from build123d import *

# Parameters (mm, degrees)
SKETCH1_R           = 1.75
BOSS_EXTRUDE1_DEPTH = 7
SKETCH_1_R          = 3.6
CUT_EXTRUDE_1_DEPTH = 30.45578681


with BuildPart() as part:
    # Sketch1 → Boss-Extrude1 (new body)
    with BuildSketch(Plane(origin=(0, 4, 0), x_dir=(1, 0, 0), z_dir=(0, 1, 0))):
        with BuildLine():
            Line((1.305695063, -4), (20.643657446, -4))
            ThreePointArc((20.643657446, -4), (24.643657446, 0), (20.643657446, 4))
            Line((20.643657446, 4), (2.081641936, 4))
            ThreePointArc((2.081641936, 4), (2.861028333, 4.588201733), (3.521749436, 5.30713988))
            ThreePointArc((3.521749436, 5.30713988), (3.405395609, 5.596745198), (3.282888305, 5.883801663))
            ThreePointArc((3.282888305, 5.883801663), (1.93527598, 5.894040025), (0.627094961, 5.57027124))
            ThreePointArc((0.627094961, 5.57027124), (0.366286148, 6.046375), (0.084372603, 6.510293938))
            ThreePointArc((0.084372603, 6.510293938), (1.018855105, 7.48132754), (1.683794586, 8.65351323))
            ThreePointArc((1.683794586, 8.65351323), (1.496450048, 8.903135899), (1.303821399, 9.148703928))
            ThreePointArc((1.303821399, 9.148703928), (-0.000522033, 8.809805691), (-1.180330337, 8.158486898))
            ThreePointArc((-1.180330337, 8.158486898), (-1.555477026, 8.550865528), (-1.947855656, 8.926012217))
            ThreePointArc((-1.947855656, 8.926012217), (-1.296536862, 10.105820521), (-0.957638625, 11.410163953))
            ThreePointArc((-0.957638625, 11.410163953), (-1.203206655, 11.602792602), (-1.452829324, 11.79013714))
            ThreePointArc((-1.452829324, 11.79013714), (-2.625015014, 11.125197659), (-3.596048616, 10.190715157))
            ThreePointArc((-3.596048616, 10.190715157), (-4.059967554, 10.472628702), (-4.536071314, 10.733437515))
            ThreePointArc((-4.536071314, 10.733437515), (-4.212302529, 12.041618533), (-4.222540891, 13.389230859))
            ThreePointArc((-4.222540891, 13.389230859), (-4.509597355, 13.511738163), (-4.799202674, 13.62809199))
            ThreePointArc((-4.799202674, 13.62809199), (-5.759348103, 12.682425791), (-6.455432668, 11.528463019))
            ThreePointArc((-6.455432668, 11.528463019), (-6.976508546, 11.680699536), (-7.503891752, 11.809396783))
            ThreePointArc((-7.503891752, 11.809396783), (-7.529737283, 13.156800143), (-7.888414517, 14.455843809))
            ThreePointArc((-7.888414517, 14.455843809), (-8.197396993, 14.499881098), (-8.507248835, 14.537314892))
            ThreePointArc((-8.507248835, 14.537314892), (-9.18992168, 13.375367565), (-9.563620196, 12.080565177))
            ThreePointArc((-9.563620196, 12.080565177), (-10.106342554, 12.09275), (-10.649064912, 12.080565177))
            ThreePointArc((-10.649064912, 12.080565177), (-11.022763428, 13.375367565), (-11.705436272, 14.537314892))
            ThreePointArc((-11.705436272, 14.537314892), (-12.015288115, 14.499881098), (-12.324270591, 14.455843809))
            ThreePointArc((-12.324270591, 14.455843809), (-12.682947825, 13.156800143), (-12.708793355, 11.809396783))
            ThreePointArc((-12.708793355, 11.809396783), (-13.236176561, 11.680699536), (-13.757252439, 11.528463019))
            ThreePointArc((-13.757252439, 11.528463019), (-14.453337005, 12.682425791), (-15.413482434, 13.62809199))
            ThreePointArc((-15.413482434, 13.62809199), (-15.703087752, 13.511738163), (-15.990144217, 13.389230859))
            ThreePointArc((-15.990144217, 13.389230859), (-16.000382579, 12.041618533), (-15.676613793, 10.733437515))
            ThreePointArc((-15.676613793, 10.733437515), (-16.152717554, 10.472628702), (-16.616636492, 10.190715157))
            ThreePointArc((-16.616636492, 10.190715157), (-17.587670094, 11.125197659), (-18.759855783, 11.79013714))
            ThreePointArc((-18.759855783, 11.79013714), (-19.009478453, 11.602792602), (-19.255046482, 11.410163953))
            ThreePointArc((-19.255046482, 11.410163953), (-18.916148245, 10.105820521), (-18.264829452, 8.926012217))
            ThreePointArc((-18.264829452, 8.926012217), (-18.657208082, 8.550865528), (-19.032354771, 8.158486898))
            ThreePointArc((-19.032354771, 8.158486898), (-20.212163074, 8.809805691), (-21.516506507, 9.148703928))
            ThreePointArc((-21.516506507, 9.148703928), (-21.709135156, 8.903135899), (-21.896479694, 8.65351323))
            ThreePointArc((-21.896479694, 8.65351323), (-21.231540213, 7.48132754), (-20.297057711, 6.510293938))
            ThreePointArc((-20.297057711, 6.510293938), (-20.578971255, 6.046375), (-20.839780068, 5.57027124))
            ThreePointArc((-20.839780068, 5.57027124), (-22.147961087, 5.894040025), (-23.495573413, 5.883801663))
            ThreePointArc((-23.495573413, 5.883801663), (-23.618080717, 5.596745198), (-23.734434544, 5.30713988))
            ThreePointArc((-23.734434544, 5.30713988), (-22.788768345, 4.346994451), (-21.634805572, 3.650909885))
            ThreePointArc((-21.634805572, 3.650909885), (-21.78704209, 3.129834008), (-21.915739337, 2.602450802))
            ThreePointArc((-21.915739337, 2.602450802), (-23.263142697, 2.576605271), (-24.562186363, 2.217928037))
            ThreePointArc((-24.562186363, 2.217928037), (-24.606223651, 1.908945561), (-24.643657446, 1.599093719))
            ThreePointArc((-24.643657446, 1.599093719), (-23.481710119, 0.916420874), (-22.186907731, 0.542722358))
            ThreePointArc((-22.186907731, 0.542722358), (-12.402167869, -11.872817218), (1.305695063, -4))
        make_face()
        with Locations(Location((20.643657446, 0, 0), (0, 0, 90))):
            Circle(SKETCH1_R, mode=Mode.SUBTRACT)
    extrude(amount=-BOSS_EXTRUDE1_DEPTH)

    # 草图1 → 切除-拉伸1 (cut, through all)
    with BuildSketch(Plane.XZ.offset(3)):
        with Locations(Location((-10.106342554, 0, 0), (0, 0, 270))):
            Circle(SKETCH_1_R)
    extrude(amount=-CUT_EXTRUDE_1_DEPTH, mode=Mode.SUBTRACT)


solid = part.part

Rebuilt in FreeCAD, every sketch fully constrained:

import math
import FreeCAD as App
import Part
import Sketcher
from FreeCAD import Vector

doc = App.newDocument("Part")
body = doc.addObject("PartDesign::Body", "Body")

sketch1 = body.newObject("Sketcher::SketchObject", "Sketch")
sketch1.AttachmentSupport = (doc.getObject("XZ_Plane"), [""])
sketch1.MapMode = "FlatFace"
sketch1.AttachmentOffset = App.Placement(Vector(0, 0, -4), App.Rotation())
sketch1.addGeometry([
    Part.LineSegment(Vector(1.305695, 4, 0), Vector(20.643657, 4, 0)),
    Part.ArcOfCircle(Part.Circle(Vector(20.643657, 0, 0), Vector(0, 0, 1), 4), math.radians(-90), math.radians(90)),
    Part.LineSegment(Vector(20.643657, -4, 0), Vector(2.081642, -4, 0)),
    Part.ArcOfCircle(Part.Circle(Vector(-0.768289, -8.586708, 0), Vector(0, 0, 1), 5.4), math.radians(37.396512), math.radians(58.14543)),
    Part.ArcOfCircle(Part.Circle(Vector(-10.106343, 0, 0), Vector(0, 0, 1), 14.625), math.radians(-23.722744), math.radians(-21.277256)),
    Part.ArcOfCircle(Part.Circle(Vector(2.568378, -0.531281, 0), Vector(0, 0, 1), 5.4), math.radians(-111.069299), math.radians(-82.396512)),
    Part.ArcOfCircle(Part.Circle(Vector(-10.106343, 0, 0), Vector(0, 0, 1), 12.09275), math.radians(-32.572297), math.radians(-27.427703)),
    Part.ArcOfCircle(Part.Circle(Vector(-3.308879, -10.710989, 0), Vector(0, 0, 1), 5.4), math.radians(22.396512), math.radians(51.069299)),
    Part.ArcOfCircle(Part.Circle(Vector(-10.106342, 0, 0), Vector(0, 0, 1), 14.625), math.radians(-38.722744), math.radians(-36.277256)),
    Part.ArcOfCircle(Part.Circle(Vector(1.998992, -3.793637, 0), Vector(0, 0, 1), 5.4), math.radians(-126.069299), math.radians(-97.396512)),
    Part.ArcOfCircle(Part.Circle(Vector(-10.106343, 0, 0), Vector(0, 0, 1), 12.09275), math.radians(-47.572297), math.radians(-42.427703)),
    Part.ArcOfCircle(Part.Circle(Vector(-6.312705, -12.105334, 0), Vector(0, 0, 1), 5.4), math.radians(7.396512), math.radians(36.069299)),
    Part.ArcOfCircle(Part.Circle(Vector(-10.106343, 0.000001, 0), Vector(0, 0, 1), 14.625001), math.radians(-53.722744), math.radians(-51.277256)),
    Part.ArcOfCircle(Part.Circle(Vector(0.604647, -6.797463, 0), Vector(0, 0, 1), 5.4), math.radians(-141.069299), math.radians(-112.396512)),
    Part.ArcOfCircle(Part.Circle(Vector(-10.106343, 0, 0), Vector(0, 0, 1), 12.09275), math.radians(-62.572297), math.radians(-57.427703)),
    Part.ArcOfCircle(Part.Circle(Vector(-9.575061, -12.674721, 0), Vector(0, 0, 1), 5.4), math.radians(-7.603488), math.radians(21.069299)),
    Part.ArcOfCircle(Part.Circle(Vector(-10.106342, -0.000001, 0), Vector(0, 0, 1), 14.624999), math.radians(-68.722744), math.radians(-66.277256)),
    Part.ArcOfCircle(Part.Circle(Vector(-1.519634, -9.338053, 0), Vector(0, 0, 1), 5.4), math.radians(-156.069299), math.radians(-127.396512)),
    Part.ArcOfCircle(Part.Circle(Vector(-10.106343, 0, 0), Vector(0, 0, 1), 12.09275), math.radians(-77.572297), math.radians(-72.427703)),
    Part.ArcOfCircle(Part.Circle(Vector(-12.873623, -12.380346, 0), Vector(0, 0, 1), 5.4), math.radians(-22.603488), math.radians(6.069299)),
    Part.ArcOfCircle(Part.Circle(Vector(-10.106342, -0.000002, 0), Vector(0, 0, 1), 14.624998), math.radians(-83.722744), math.radians(-81.277256)),
    Part.ArcOfCircle(Part.Circle(Vector(-4.229085, -11.242271, 0), Vector(0, 0, 1), 5.4), math.radians(-171.069299), math.radians(-142.396512)),
    Part.ArcOfCircle(Part.Circle(Vector(-10.106343, 0, 0), Vector(0, 0, 1), 12.09275), math.radians(-92.572297), math.radians(-87.427703)),
    Part.ArcOfCircle(Part.Circle(Vector(-15.9836, -11.242271, 0), Vector(0, 0, 1), 5.4), math.radians(-37.603488), math.radians(-8.930701)),
    Part.ArcOfCircle(Part.Circle(Vector(-10.106343, -0.000002, 0), Vector(0, 0, 1), 14.624998), math.radians(-98.722744), math.radians(-96.277256)),
    Part.ArcOfCircle(Part.Circle(Vector(-7.339062, -12.380346, 0), Vector(0, 0, 1), 5.4), math.radians(173.930701), math.radians(202.603488)),
    Part.ArcOfCircle(Part.Circle(Vector(-10.106343, 0, 0), Vector(0, 0, 1), 12.09275), math.radians(-107.572297), math.radians(-102.427703)),
    Part.ArcOfCircle(Part.Circle(Vector(-18.693051, -9.338053, 0), Vector(0, 0, 1), 5.4), math.radians(-52.603488), math.radians(-23.930701)),
    Part.ArcOfCircle(Part.Circle(Vector(-10.106342, 0, 0), Vector(0, 0, 1), 14.625), math.radians(-113.722744), math.radians(-111.277256)),
    Part.ArcOfCircle(Part.Circle(Vector(-10.637624, -12.674721, 0), Vector(0, 0, 1), 5.4), math.radians(158.930701), math.radians(187.603488)),
    Part.ArcOfCircle(Part.Circle(Vector(-10.106343, 0, 0), Vector(0, 0, 1), 12.09275), math.radians(-122.572297), math.radians(-117.427703)),
    Part.ArcOfCircle(Part.Circle(Vector(-20.817332, -6.797463, 0), Vector(0, 0, 1), 5.4), math.radians(-67.603488), math.radians(-38.930701)),
    Part.ArcOfCircle(Part.Circle(Vector(-10.106344, -0.000001, 0), Vector(0, 0, 1), 14.624998), math.radians(-128.722744), math.radians(-126.277256)),
    Part.ArcOfCircle(Part.Circle(Vector(-13.89998, -12.105334, 0), Vector(0, 0, 1), 5.4), math.radians(143.930701), math.radians(172.603488)),
    Part.ArcOfCircle(Part.Circle(Vector(-10.106342, 0, 0), Vector(0, 0, 1), 12.09275), math.radians(-137.572297), math.radians(-132.427703)),
    Part.ArcOfCircle(Part.Circle(Vector(-22.211677, -3.793637, 0), Vector(0, 0, 1), 5.4), math.radians(-82.603488), math.radians(-53.930701)),
    Part.ArcOfCircle(Part.Circle(Vector(-10.106343, 0, 0), Vector(0, 0, 1), 14.625), math.radians(-143.722744), math.radians(-141.277256)),
    Part.ArcOfCircle(Part.Circle(Vector(-16.903806, -10.710989, 0), Vector(0, 0, 1), 5.4), math.radians(128.930701), math.radians(157.603488)),
    Part.ArcOfCircle(Part.Circle(Vector(-10.106342, 0, 0), Vector(0, 0, 1), 12.092751), math.radians(-152.572297), math.radians(-147.427703)),
    Part.ArcOfCircle(Part.Circle(Vector(-22.781063, -0.531281, 0), Vector(0, 0, 1), 5.4), math.radians(-97.603488), math.radians(-68.930701)),
    Part.ArcOfCircle(Part.Circle(Vector(-10.106342, 0, 0), Vector(0, 0, 1), 14.625), math.radians(-158.722744), math.radians(-156.277256)),
    Part.ArcOfCircle(Part.Circle(Vector(-19.444396, -8.586708, 0), Vector(0, 0, 1), 5.4), math.radians(113.930701), math.radians(142.603488)),
    Part.ArcOfCircle(Part.Circle(Vector(-10.106343, 0, 0), Vector(0, 0, 1), 12.092749), math.radians(-167.572297), math.radians(-162.427702)),
    Part.ArcOfCircle(Part.Circle(Vector(-22.486688, 2.767281, 0), Vector(0, 0, 1), 5.4), math.radians(-112.603488), math.radians(-83.930701)),
    Part.ArcOfCircle(Part.Circle(Vector(-10.10634, 0, 0), Vector(0, 0, 1), 14.625003), math.radians(-173.722744), math.radians(-171.277256)),
    Part.ArcOfCircle(Part.Circle(Vector(-21.348613, -5.877257, 0), Vector(0, 0, 1), 5.4), math.radians(98.930701), math.radians(127.603488)),
    Part.ArcOfCircle(Part.Circle(Vector(-10.106343, 0, 0), Vector(0, 0, 1), 12.09275), math.radians(19.315925), math.radians(182.572297)),
    Part.Circle(Vector(20.643657, 0, 0), Vector(0, 0, 1), 1.75),
], False)
sketch1.addConstraint([
    Sketcher.Constraint("Coincident", 0, 2, 1, 2),
    Sketcher.Constraint("Coincident", 1, 1, 2, 1),
    Sketcher.Constraint("Coincident", 2, 2, 3, 2),
    Sketcher.Constraint("Coincident", 3, 1, 4, 2),
    Sketcher.Constraint("Coincident", 4, 1, 5, 2),
    Sketcher.Constraint("Coincident", 5, 1, 6, 2),
    Sketcher.Constraint("Coincident", 6, 1, 7, 2),
    Sketcher.Constraint("Coincident", 7, 1, 8, 2),
    Sketcher.Constraint("Coincident", 8, 1, 9, 2),
    Sketcher.Constraint("Coincident", 9, 1, 10, 2),
    Sketcher.Constraint("Coincident", 10, 1, 11, 2),
    Sketcher.Constraint("Coincident", 11, 1, 12, 2),
    Sketcher.Constraint("Coincident", 12, 1, 13, 2),
    Sketcher.Constraint("Coincident", 13, 1, 14, 2),
    Sketcher.Constraint("Coincident", 14, 1, 15, 2),
    Sketcher.Constraint("Coincident", 15, 1, 16, 2),
    Sketcher.Constraint("Coincident", 16, 1, 17, 2),
    Sketcher.Constraint("Coincident", 17, 1, 18, 2),
    Sketcher.Constraint("Coincident", 18, 1, 19, 2),
    Sketcher.Constraint("Coincident", 19, 1, 20, 2),
    Sketcher.Constraint("Coincident", 20, 1, 21, 2),
    Sketcher.Constraint("Coincident", 21, 1, 22, 2),
    Sketcher.Constraint("Coincident", 22, 1, 23, 2),
    Sketcher.Constraint("Coincident", 23, 1, 24, 2),
    Sketcher.Constraint("Coincident", 24, 1, 25, 2),
    Sketcher.Constraint("Coincident", 25, 1, 26, 2),
    Sketcher.Constraint("Coincident", 26, 1, 27, 2),
    Sketcher.Constraint("Coincident", 27, 1, 28, 2),
    Sketcher.Constraint("Coincident", 28, 1, 29, 2),
    Sketcher.Constraint("Coincident", 29, 1, 30, 2),
    Sketcher.Constraint("Coincident", 30, 1, 31, 2),
    Sketcher.Constraint("Coincident", 31, 1, 32, 2),
    Sketcher.Constraint("Coincident", 32, 1, 33, 2),
    Sketcher.Constraint("Coincident", 33, 1, 34, 2),
    Sketcher.Constraint("Coincident", 34, 1, 35, 2),
    Sketcher.Constraint("Coincident", 35, 1, 36, 2),
    Sketcher.Constraint("Coincident", 36, 1, 37, 2),
    Sketcher.Constraint("Coincident", 37, 1, 38, 2),
    Sketcher.Constraint("Coincident", 38, 1, 39, 2),
    Sketcher.Constraint("Coincident", 39, 1, 40, 2),
    Sketcher.Constraint("Coincident", 40, 1, 41, 2),
    Sketcher.Constraint("Coincident", 41, 1, 42, 2),
    Sketcher.Constraint("Coincident", 42, 1, 43, 2),
    Sketcher.Constraint("Coincident", 43, 1, 44, 2),
    Sketcher.Constraint("Coincident", 44, 1, 45, 2),
    Sketcher.Constraint("Coincident", 45, 1, 46, 2),
    Sketcher.Constraint("Coincident", 46, 1, 0, 1),
    Sketcher.Constraint("Horizontal", 0),
    Sketcher.Constraint("Horizontal", 2),
    Sketcher.Constraint("Coincident", 6, 3, 4, 3),
    Sketcher.Constraint("Coincident", 8, 3, 4, 3),
    Sketcher.Constraint("Coincident", 10, 3, 4, 3),
    Sketcher.Constraint("Coincident", 12, 3, 4, 3),
    Sketcher.Constraint("Coincident", 14, 3, 4, 3),
    Sketcher.Constraint("Coincident", 16, 3, 4, 3),
    Sketcher.Constraint("Coincident", 18, 3, 4, 3),
    Sketcher.Constraint("Coincident", 20, 3, 4, 3),
    Sketcher.Constraint("Coincident", 22, 3, 4, 3),
    Sketcher.Constraint("Coincident", 24, 3, 4, 3),
    Sketcher.Constraint("Coincident", 26, 3, 4, 3),
    Sketcher.Constraint("Coincident", 28, 3, 4, 3),
    Sketcher.Constraint("Coincident", 30, 3, 4, 3),
    Sketcher.Constraint("Coincident", 32, 3, 4, 3),
    Sketcher.Constraint("Coincident", 34, 3, 4, 3),
    Sketcher.Constraint("Coincident", 36, 3, 4, 3),
    Sketcher.Constraint("Coincident", 38, 3, 4, 3),
    Sketcher.Constraint("Coincident", 40, 3, 4, 3),
    Sketcher.Constraint("Coincident", 42, 3, 4, 3),
    Sketcher.Constraint("Coincident", 44, 3, 4, 3),
    Sketcher.Constraint("Coincident", 46, 3, 4, 3),
    Sketcher.Constraint("Coincident", 47, 3, 1, 3),
    Sketcher.Constraint("PointOnObject", 1, 3, -1),
    Sketcher.Constraint("PointOnObject", 4, 3, -1),
    Sketcher.Constraint("Radius", 1, 4.0),
    Sketcher.Constraint("Diameter", 47, 3.5),
    Sketcher.Constraint("Radius", 3, 5.4),
    Sketcher.Constraint("Radius", 5, 5.4),
    Sketcher.Constraint("Radius", 7, 5.4),
    Sketcher.Constraint("Radius", 9, 5.4),
    Sketcher.Constraint("Radius", 11, 5.4),
    Sketcher.Constraint("Radius", 13, 5.4),
    Sketcher.Constraint("Radius", 15, 5.4),
    Sketcher.Constraint("Radius", 17, 5.4),
    Sketcher.Constraint("Radius", 19, 5.4),
    Sketcher.Constraint("Radius", 21, 5.4),
    Sketcher.Constraint("Radius", 23, 5.4),
    Sketcher.Constraint("Radius", 25, 5.4),
    Sketcher.Constraint("Radius", 27, 5.4),
    Sketcher.Constraint("Radius", 29, 5.4),
    Sketcher.Constraint("Radius", 31, 5.4),
    Sketcher.Constraint("Radius", 33, 5.4),
    Sketcher.Constraint("Radius", 35, 5.4),
    Sketcher.Constraint("Radius", 37, 5.4),
    Sketcher.Constraint("Radius", 39, 5.4),
    Sketcher.Constraint("Radius", 41, 5.4),
    Sketcher.Constraint("Radius", 43, 5.4),
    Sketcher.Constraint("Radius", 45, 5.4),
    Sketcher.Constraint("Radius", 4, 14.625),
    Sketcher.Constraint("Radius", 8, 14.625),
    Sketcher.Constraint("Radius", 12, 14.625001),
    Sketcher.Constraint("Radius", 16, 14.624999),
    Sketcher.Constraint("Radius", 20, 14.624998),
    Sketcher.Constraint("Radius", 24, 14.624998),
    Sketcher.Constraint("Radius", 28, 14.625),
    Sketcher.Constraint("Radius", 32, 14.624998),
    Sketcher.Constraint("Radius", 36, 14.625),
    Sketcher.Constraint("Radius", 40, 14.625),
    Sketcher.Constraint("Radius", 6, 12.09275),
    Sketcher.Constraint("Radius", 10, 12.09275),
    Sketcher.Constraint("Radius", 14, 12.09275),
    Sketcher.Constraint("Radius", 18, 12.09275),
    Sketcher.Constraint("Radius", 22, 12.09275),
    Sketcher.Constraint("Radius", 26, 12.09275),
    Sketcher.Constraint("Radius", 30, 12.09275),
    Sketcher.Constraint("Radius", 34, 12.09275),
    Sketcher.Constraint("Radius", 38, 12.092751),
    Sketcher.Constraint("Radius", 42, 12.092749),
    Sketcher.Constraint("Radius", 46, 12.09275),
    Sketcher.Constraint("Radius", 44, 14.625003),
    Sketcher.Constraint("DistanceX", 23, 3, -1, 1, 15.9836),
    Sketcher.Constraint("DistanceY", 4, 1, -1, 1, 5.883802),
    Sketcher.Constraint("DistanceY", 39, 1, -1, 1, 5.883802),
    Sketcher.Constraint("DistanceX", 0, 1, 0, 2, 19.337962),
    Sketcher.Constraint("DistanceX", 2, 2, 2, 1, 18.562016),
    Sketcher.Constraint("DistanceX", 3, 3, -1, 1, 0.768289),
    Sketcher.Constraint("DistanceY", 3, 3, -1, 1, 8.586708),
    Sketcher.Constraint("DistanceY", 5, 3, -1, 1, 0.531281),
    Sketcher.Constraint("DistanceX", 7, 3, -1, 1, 3.308879),
    Sketcher.Constraint("DistanceY", 7, 3, -1, 1, 10.710989),
    Sketcher.Constraint("DistanceX", -1, 1, 9, 3, 1.998992),
    Sketcher.Constraint("DistanceX", 15, 3, -1, 1, 9.575061),
    Sketcher.Constraint("DistanceY", 15, 3, -1, 1, 12.674721),
    Sketcher.Constraint("DistanceY", 21, 3, -1, 1, 11.242271),
    Sketcher.Constraint("DistanceY", 23, 3, -1, 1, 11.242271),
    Sketcher.Constraint("DistanceX", 25, 3, -1, 1, 7.339062),
    Sketcher.Constraint("DistanceX", 27, 3, -1, 1, 18.693051),
    Sketcher.Constraint("DistanceY", 29, 3, -1, 1, 12.674721),
    Sketcher.Constraint("DistanceX", 31, 3, -1, 1, 20.817332),
    Sketcher.Constraint("DistanceX", 33, 3, -1, 1, 13.89998),
    Sketcher.Constraint("DistanceY", 37, 3, -1, 1, 10.710989),
    Sketcher.Constraint("DistanceY", 39, 3, -1, 1, 0.531281),
    Sketcher.Constraint("DistanceY", 41, 3, -1, 1, 8.586708),
    Sketcher.Constraint("DistanceX", 43, 3, -1, 1, 22.486688),
    Sketcher.Constraint("DistanceY", -1, 1, 43, 3, 2.767281),
    Sketcher.Constraint("DistanceX", 44, 3, -1, 1, 10.10634),
    Sketcher.Constraint("DistanceX", -1, 1, 8, 1, 1.303821),
    Sketcher.Constraint("DistanceX", 11, 1, -1, 1, 0.957639),
    Sketcher.Constraint("DistanceX", 12, 1, -1, 1, 1.452829),
    Sketcher.Constraint("DistanceX", 13, 1, -1, 1, 3.596049),
    Sketcher.Constraint("DistanceY", 16, 1, -1, 1, 13.628092),
    Sketcher.Constraint("DistanceX", 18, 1, -1, 1, 7.503892),
    Sketcher.Constraint("DistanceX", 20, 1, -1, 1, 8.507249),
    Sketcher.Constraint("DistanceX", 24, 1, -1, 1, 12.324271),
    Sketcher.Constraint("DistanceY", 27, 1, -1, 1, 13.628092),
    Sketcher.Constraint("DistanceY", 28, 1, -1, 1, 13.389231),
    Sketcher.Constraint("DistanceX", 33, 1, -1, 1, 18.264829),
    Sketcher.Constraint("DistanceX", 36, 1, -1, 1, 21.89648),
    Sketcher.Constraint("DistanceY", 40, 1, -1, 1, 5.30714),
    Sketcher.Constraint("DistanceX", -1, 1, 1, 3, 20.643657),
    Sketcher.Constraint("DistanceX", 11, 3, -1, 1, 6.312705),
    Sketcher.Constraint("DistanceX", 17, 3, -1, 1, 1.519634),
    Sketcher.Constraint("DistanceX", 19, 3, -1, 1, 12.873623),
    Sketcher.Constraint("DistanceY", 31, 3, -1, 1, 6.797463),
    Sketcher.Constraint("DistanceX", 35, 3, -1, 1, 22.211677),
    Sketcher.Constraint("DistanceY", 35, 3, -1, 1, 3.793637),
    Sketcher.Constraint("DistanceX", 45, 3, -1, 1, 21.348613),
    Sketcher.Constraint("DistanceY", 45, 3, -1, 1, 5.877257),
])
pad1 = body.newObject("PartDesign::Pad", "Pad")
pad1.Profile = sketch1
pad1.Length = 7

sketch2 = body.newObject("Sketcher::SketchObject", "Sketch001")
sketch2.AttachmentSupport = (doc.getObject("XZ_Plane"), [""])
sketch2.MapMode = "FlatFace"
sketch2.AttachmentOffset = App.Placement(Vector(0, 0, 3), App.Rotation())
sketch2.addGeometry(Part.Circle(Vector(-10.1, 0, 0), Vector(0, 0, 1), 3.6), False)
sketch2.addConstraint([
    Sketcher.Constraint("PointOnObject", 0, 3, -1),
    Sketcher.Constraint("Diameter", 0, 7.2),
    Sketcher.Constraint("DistanceX", 0, 3, -1, 1, 10.106343),
])
pocket1 = body.newObject("PartDesign::Pocket", "Pocket")
pocket1.Profile = sketch2
pocket1.Type = "ThroughAll"

doc.recompute()
